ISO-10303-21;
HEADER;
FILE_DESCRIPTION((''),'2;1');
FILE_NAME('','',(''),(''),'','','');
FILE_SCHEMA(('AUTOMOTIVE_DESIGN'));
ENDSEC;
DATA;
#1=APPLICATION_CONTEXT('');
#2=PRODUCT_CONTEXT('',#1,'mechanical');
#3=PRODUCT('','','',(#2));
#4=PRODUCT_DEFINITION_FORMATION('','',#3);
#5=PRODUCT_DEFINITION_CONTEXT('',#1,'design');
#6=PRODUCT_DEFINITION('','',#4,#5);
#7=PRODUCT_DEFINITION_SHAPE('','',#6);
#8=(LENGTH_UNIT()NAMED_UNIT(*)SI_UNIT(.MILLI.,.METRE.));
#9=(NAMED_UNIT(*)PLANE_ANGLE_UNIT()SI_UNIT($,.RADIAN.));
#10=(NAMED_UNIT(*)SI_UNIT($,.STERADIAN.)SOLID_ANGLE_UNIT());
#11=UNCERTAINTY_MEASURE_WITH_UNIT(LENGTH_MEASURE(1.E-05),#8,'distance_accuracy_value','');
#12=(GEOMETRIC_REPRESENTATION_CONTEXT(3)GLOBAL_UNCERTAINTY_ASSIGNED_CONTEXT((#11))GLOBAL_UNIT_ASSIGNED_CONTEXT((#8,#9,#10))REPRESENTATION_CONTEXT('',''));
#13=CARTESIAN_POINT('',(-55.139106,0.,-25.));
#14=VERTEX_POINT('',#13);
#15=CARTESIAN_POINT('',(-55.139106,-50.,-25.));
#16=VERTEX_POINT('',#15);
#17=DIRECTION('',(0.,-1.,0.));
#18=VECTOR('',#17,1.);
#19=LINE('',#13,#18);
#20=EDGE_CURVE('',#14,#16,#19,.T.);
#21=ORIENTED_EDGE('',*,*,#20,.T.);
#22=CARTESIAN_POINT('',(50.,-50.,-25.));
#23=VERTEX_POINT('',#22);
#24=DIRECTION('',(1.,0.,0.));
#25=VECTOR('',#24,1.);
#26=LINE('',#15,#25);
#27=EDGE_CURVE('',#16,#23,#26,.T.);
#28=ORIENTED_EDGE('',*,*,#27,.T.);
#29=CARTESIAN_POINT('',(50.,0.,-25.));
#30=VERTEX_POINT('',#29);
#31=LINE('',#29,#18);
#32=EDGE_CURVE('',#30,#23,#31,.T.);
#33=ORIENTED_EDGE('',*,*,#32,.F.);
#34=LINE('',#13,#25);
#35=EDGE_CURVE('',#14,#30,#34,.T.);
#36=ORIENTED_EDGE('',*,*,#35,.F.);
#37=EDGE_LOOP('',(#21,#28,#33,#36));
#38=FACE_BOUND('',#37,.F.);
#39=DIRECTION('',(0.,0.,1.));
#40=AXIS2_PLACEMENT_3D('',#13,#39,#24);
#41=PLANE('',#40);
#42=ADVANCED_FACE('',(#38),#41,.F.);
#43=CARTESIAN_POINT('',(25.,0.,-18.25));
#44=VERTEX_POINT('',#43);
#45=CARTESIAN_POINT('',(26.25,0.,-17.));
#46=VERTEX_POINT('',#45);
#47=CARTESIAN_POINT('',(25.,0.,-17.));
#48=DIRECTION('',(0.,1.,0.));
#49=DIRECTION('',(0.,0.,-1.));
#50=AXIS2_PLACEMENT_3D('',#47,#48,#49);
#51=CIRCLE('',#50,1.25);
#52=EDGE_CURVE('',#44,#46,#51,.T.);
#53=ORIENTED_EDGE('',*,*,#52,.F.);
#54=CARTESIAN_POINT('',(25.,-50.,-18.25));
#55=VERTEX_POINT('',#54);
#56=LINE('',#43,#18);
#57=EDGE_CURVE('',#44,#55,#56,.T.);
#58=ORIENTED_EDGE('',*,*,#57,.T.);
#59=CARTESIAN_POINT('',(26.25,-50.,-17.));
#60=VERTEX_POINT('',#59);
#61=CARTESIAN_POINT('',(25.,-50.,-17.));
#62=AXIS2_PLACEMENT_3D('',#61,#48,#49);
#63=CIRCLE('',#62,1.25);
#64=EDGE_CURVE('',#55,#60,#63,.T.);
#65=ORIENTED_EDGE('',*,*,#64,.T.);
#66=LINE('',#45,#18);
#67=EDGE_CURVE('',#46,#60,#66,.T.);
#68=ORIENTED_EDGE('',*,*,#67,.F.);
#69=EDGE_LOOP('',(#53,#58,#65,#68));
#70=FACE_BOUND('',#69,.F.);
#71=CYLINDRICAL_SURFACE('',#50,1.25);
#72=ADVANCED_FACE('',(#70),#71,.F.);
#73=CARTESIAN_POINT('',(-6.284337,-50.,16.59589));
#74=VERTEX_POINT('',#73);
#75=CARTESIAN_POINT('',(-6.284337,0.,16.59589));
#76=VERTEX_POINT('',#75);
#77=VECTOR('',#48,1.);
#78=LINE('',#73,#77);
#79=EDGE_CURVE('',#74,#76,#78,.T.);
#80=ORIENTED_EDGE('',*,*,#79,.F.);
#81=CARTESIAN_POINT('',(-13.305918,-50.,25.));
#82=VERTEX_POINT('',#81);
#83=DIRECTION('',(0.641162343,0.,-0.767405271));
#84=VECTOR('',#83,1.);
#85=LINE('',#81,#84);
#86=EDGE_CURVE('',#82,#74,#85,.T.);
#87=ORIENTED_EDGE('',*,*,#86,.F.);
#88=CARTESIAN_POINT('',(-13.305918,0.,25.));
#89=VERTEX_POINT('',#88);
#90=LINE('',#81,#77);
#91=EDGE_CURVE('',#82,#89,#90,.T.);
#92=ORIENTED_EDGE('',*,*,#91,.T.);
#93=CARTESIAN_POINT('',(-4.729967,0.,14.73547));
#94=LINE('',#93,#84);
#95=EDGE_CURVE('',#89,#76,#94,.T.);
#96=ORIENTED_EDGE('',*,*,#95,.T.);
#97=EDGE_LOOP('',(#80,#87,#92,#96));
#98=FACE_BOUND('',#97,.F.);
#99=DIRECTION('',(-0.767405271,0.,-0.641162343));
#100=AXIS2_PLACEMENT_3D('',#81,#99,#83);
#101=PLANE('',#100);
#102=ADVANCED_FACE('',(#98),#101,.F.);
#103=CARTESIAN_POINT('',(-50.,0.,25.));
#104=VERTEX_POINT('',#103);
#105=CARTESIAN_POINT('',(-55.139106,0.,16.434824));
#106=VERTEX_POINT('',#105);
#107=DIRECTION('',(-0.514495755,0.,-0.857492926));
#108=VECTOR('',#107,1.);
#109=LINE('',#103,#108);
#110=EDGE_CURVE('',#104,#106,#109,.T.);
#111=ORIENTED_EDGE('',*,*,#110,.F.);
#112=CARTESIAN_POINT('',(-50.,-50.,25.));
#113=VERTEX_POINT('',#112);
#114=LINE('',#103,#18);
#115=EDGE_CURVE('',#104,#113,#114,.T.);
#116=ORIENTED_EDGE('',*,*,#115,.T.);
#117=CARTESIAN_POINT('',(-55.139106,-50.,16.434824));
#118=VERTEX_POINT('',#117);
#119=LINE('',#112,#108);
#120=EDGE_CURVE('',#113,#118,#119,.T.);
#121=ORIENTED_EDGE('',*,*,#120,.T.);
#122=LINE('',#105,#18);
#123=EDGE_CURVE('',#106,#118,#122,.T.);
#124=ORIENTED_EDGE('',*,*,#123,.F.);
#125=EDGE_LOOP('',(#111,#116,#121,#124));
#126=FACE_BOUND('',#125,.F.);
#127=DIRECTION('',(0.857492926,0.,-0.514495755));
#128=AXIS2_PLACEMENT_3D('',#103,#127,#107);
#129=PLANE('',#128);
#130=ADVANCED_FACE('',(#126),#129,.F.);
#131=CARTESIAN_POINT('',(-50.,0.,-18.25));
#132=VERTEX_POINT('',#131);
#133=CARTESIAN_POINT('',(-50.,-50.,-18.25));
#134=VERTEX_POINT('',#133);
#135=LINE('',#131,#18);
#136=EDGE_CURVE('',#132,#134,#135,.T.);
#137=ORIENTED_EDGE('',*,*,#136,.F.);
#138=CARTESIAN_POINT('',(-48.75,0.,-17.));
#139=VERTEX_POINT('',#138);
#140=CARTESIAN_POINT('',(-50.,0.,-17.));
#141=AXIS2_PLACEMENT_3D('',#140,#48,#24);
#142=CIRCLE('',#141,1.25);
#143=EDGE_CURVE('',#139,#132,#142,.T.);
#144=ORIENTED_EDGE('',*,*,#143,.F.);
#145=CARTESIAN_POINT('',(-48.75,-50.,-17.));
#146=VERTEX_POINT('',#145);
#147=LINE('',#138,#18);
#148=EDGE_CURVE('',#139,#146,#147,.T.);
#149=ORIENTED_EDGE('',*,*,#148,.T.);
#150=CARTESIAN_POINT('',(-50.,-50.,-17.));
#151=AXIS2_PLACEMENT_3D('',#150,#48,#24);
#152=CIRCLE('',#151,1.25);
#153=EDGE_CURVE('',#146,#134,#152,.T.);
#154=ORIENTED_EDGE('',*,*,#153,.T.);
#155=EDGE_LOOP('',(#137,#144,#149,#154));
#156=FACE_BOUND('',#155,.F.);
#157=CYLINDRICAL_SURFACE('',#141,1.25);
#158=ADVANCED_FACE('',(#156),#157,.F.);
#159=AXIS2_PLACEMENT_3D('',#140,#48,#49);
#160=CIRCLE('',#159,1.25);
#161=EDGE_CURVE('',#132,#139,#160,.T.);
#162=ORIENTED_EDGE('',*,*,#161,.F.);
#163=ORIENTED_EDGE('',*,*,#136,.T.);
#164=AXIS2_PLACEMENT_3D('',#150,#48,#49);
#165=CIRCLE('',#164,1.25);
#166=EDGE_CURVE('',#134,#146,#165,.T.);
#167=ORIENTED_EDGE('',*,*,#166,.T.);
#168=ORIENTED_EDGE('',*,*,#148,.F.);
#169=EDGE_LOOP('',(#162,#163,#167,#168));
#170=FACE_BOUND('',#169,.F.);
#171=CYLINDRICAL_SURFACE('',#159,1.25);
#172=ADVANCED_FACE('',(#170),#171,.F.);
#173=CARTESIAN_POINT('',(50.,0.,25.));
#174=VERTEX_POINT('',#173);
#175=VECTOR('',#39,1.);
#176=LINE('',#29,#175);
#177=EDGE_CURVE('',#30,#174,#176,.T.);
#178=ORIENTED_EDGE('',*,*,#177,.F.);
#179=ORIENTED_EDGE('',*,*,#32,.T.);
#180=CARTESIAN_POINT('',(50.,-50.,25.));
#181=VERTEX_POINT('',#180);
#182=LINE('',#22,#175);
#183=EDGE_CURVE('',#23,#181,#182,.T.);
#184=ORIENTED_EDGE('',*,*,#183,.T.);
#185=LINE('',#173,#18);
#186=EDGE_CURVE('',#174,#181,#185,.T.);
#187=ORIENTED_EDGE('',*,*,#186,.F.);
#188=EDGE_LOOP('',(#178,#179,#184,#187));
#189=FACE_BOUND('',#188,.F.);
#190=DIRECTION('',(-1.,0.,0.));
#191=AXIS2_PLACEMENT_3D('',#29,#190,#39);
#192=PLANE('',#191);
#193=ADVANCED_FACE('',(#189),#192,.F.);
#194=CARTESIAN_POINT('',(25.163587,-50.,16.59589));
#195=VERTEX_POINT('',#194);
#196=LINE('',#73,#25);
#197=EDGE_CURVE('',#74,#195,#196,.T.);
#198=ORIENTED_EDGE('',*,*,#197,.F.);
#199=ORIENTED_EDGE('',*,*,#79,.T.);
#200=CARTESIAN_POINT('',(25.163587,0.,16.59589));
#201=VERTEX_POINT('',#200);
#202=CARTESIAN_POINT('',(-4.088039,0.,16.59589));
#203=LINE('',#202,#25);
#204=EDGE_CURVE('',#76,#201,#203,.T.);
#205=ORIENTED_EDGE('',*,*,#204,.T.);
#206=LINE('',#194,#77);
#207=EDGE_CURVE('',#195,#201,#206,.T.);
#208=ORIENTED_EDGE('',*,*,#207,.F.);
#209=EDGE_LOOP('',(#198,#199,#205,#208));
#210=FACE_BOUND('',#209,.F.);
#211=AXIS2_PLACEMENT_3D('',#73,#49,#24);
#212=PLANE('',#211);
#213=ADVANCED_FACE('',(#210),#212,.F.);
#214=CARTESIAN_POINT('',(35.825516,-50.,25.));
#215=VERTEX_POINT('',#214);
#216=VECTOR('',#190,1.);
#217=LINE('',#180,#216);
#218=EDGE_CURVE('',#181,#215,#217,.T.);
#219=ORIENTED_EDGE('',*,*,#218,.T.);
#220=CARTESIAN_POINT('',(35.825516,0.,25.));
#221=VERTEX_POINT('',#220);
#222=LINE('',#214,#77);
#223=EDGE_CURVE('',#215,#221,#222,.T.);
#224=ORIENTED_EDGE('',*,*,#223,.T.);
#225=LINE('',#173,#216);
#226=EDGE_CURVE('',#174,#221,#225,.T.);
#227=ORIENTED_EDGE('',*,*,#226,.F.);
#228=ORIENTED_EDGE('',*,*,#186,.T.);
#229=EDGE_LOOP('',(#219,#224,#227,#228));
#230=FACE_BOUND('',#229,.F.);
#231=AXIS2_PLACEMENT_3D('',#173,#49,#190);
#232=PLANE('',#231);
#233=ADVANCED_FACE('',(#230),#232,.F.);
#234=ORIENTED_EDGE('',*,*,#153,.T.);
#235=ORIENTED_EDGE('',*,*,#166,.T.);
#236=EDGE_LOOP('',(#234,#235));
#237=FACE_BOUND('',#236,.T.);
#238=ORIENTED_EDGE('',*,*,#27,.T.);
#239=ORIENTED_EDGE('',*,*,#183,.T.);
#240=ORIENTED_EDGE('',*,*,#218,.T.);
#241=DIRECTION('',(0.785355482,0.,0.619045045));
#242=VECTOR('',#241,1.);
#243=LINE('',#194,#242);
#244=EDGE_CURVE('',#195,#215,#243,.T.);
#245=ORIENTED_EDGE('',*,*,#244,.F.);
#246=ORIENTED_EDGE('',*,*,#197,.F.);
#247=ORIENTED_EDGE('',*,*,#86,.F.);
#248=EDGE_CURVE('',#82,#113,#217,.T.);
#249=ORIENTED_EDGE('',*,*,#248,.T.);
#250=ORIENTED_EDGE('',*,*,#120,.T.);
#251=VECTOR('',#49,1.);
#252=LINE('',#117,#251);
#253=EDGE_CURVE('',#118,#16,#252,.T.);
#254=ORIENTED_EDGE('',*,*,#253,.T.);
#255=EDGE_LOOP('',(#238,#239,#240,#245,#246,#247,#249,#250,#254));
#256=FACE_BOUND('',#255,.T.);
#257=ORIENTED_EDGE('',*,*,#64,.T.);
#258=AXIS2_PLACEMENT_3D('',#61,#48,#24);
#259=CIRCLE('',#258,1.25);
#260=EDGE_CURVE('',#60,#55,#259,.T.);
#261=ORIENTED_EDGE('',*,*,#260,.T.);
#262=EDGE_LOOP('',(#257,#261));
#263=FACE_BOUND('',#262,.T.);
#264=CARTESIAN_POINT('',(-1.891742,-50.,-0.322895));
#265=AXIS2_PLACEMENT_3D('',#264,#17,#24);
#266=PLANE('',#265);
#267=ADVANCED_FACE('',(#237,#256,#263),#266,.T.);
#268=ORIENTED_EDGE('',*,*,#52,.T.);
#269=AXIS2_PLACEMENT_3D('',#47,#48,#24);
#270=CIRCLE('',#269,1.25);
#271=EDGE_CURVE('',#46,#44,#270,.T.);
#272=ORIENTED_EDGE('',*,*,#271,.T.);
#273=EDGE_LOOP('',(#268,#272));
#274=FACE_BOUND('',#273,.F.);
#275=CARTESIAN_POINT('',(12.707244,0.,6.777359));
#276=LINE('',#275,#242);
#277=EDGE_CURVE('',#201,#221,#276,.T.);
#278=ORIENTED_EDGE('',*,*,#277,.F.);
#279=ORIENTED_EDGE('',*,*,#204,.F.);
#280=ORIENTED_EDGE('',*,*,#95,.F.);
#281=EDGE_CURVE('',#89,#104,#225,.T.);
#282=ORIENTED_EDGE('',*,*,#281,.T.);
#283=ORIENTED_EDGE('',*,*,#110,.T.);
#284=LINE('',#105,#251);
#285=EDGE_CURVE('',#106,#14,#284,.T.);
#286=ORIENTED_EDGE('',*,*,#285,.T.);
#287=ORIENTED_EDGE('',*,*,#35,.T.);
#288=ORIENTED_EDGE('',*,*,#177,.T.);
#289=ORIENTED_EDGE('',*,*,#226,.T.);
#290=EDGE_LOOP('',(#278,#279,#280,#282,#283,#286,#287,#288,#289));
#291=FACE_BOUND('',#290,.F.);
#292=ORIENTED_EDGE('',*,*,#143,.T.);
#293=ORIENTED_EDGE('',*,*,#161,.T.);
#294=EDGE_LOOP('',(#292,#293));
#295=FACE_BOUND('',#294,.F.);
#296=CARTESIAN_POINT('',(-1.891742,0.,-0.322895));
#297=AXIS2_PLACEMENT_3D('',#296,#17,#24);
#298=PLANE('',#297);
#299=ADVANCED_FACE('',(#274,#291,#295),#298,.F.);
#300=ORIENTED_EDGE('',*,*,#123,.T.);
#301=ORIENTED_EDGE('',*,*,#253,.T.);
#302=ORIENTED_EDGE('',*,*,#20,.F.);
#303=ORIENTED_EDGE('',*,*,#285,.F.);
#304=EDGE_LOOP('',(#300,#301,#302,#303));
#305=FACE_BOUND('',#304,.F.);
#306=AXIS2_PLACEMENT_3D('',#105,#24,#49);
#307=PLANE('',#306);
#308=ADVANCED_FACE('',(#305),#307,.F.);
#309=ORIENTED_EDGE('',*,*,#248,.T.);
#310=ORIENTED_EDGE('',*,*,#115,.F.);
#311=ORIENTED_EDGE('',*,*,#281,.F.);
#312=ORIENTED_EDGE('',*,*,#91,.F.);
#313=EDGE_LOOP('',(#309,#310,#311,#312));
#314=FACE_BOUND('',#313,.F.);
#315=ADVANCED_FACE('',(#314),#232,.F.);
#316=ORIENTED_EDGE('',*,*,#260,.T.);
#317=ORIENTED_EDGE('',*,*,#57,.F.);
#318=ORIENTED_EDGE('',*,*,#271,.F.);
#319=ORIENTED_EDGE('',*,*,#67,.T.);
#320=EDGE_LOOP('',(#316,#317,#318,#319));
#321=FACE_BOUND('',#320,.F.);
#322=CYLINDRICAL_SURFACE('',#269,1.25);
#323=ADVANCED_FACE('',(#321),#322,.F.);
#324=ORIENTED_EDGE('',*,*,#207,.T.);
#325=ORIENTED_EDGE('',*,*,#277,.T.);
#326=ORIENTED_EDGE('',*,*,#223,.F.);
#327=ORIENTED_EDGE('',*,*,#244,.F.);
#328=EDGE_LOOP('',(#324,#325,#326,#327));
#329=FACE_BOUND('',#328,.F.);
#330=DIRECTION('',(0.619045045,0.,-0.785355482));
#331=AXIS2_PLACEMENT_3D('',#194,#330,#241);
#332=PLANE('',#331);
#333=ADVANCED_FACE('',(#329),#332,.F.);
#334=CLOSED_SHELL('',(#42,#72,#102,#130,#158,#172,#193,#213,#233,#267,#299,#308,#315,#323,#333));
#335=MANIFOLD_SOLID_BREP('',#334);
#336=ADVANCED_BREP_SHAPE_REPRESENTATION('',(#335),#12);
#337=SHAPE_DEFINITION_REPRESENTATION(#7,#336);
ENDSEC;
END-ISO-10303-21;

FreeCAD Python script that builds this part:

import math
import FreeCAD as App
import Part
import Sketcher
from FreeCAD import Vector


def add_polygon(sketch, points):
    """Adds a closed chain of lines whose ends are joined by coincident constraints."""
    first, n = sketch.GeometryCount, len(points)
    for a, b in zip(points, points[1:] + points[:1]):
        sketch.addGeometry(Part.LineSegment(App.Vector(*a, 0), App.Vector(*b, 0)), False)
    for i in range(n):
        sketch.addConstraint(Sketcher.Constraint("Coincident", first + i, 2, first + (i + 1) % n, 1))

doc = App.newDocument("Part")
body = doc.addObject("PartDesign::Body", "Body")

# Sketch on XZ plane
sketch1 = body.newObject("Sketcher::SketchObject", "Sketch")
sketch1.AttachmentSupport = (doc.getObject("XZ_Plane"), [""])
sketch1.MapMode = "FlatFace"
add_polygon(sketch1, [(50, -25), (50, 25), (-50, 25), (-55.1, 16.4), (-55.1, -25)])  # lines 0-4
sketch1.addGeometry(Part.ArcOfCircle(Part.Circle(Vector(-50, -17, 0), Vector(0, 0, 1), 1.2), math.radians(-90), math.radians(0)), False)  # 5
sketch1.addGeometry(Part.ArcOfCircle(Part.Circle(Vector(-50, -17, 0), Vector(0, 0, 1), 1.2), math.radians(0), math.radians(270)), False)  # 6
sketch1.addGeometry(Part.ArcOfCircle(Part.Circle(Vector(25, -17, 0), Vector(0, 0, 1), 1.2), math.radians(0), math.radians(270)), False)  # 7
sketch1.addGeometry(Part.ArcOfCircle(Part.Circle(Vector(25, -17, 0), Vector(0, 0, 1), 1.2), math.radians(-90), math.radians(0)), False)  # 8
sketch1.addConstraint([
    Sketcher.Constraint("Tangent", 5, 1, 6, 2),
    Sketcher.Constraint("Coincident", 6, 1, 5, 2),
    Sketcher.Constraint("Tangent", 7, 1, 8, 2),
    Sketcher.Constraint("Coincident", 8, 1, 7, 2),
    Sketcher.Constraint("Vertical", 0),
    Sketcher.Constraint("Horizontal", 1),
    Sketcher.Constraint("Vertical", 3),
    Sketcher.Constraint("Horizontal", 4),
    Sketcher.Constraint("Equal", 6, 7),
    Sketcher.Constraint("Symmetric", 1, 2, 4, 2, -1, 1),
    Sketcher.Constraint("Horizontal", 6, 3, 7, 3),
    Sketcher.Constraint("Horizontal", 8, 3, 6, 1),
    Sketcher.Constraint("Horizontal", 6, 1, 7, 1),
    Sketcher.Constraint("Vertical", 6, 3, 1, 2),
    Sketcher.Constraint("Vertical", 1, 2, 5, 1),
    Sketcher.Constraint("Vertical", 7, 3, 8, 1),
    Sketcher.Constraint("DistanceX", 1, 2, 1, 1, 100.0),
    Sketcher.Constraint("DistanceY", 0, 1, 0, 2, 50.0),
    Sketcher.Constraint("Radius", 5, 1.25),
    Sketcher.Constraint("DistanceY", 5, 3, -1, 1, 17.0),
    Sketcher.Constraint("DistanceX", -1, 1, 7, 3, 25.0),
    Sketcher.Constraint("DistanceX", 4, 1, 4, 2, 105.139106),
    Sketcher.Constraint("DistanceY", 3, 2, 3, 1, 41.434824),
])
pad1 = body.newObject("PartDesign::Pad", "Pad")
pad1.Profile = sketch1
pad1.Length = 50

# Sketch on XZ plane
sketch2 = body.newObject("Sketcher::SketchObject", "Sketch001")
sketch2.AttachmentSupport = (doc.getObject("XZ_Plane"), [""])
sketch2.MapMode = "FlatFace"
sketch2.AttachmentOffset = App.Placement(Vector(0, 0, 50), App.Rotation())
add_polygon(sketch2, [(-13, 25), (-6, 17), (25, 17), (36, 25)])  # lines 0-3
sketch2.addConstraint([
    Sketcher.Constraint("Horizontal", 1),
    Sketcher.Constraint("Horizontal", 3),
    Sketcher.Constraint("DistanceY", -1, 1, 2, 2, 25.0),
    Sketcher.Constraint("DistanceX", 1, 1, 1, 2, 31.447924),
    Sketcher.Constraint("DistanceX", 3, 2, 3, 1, 49.131434),
    Sketcher.Constraint("DistanceY", -1, 1, 0, 2, 16.59589),
    Sketcher.Constraint("DistanceX", 3, 2, -1, 1, 13.305918),
    Sketcher.Constraint("DistanceX", 1, 2, 2, 2, 10.661928),
])
pocket1 = body.newObject("PartDesign::Pocket", "Pocket")
pocket1.Profile = sketch2
pocket1.Type = "ThroughAll"

doc.recompute()
